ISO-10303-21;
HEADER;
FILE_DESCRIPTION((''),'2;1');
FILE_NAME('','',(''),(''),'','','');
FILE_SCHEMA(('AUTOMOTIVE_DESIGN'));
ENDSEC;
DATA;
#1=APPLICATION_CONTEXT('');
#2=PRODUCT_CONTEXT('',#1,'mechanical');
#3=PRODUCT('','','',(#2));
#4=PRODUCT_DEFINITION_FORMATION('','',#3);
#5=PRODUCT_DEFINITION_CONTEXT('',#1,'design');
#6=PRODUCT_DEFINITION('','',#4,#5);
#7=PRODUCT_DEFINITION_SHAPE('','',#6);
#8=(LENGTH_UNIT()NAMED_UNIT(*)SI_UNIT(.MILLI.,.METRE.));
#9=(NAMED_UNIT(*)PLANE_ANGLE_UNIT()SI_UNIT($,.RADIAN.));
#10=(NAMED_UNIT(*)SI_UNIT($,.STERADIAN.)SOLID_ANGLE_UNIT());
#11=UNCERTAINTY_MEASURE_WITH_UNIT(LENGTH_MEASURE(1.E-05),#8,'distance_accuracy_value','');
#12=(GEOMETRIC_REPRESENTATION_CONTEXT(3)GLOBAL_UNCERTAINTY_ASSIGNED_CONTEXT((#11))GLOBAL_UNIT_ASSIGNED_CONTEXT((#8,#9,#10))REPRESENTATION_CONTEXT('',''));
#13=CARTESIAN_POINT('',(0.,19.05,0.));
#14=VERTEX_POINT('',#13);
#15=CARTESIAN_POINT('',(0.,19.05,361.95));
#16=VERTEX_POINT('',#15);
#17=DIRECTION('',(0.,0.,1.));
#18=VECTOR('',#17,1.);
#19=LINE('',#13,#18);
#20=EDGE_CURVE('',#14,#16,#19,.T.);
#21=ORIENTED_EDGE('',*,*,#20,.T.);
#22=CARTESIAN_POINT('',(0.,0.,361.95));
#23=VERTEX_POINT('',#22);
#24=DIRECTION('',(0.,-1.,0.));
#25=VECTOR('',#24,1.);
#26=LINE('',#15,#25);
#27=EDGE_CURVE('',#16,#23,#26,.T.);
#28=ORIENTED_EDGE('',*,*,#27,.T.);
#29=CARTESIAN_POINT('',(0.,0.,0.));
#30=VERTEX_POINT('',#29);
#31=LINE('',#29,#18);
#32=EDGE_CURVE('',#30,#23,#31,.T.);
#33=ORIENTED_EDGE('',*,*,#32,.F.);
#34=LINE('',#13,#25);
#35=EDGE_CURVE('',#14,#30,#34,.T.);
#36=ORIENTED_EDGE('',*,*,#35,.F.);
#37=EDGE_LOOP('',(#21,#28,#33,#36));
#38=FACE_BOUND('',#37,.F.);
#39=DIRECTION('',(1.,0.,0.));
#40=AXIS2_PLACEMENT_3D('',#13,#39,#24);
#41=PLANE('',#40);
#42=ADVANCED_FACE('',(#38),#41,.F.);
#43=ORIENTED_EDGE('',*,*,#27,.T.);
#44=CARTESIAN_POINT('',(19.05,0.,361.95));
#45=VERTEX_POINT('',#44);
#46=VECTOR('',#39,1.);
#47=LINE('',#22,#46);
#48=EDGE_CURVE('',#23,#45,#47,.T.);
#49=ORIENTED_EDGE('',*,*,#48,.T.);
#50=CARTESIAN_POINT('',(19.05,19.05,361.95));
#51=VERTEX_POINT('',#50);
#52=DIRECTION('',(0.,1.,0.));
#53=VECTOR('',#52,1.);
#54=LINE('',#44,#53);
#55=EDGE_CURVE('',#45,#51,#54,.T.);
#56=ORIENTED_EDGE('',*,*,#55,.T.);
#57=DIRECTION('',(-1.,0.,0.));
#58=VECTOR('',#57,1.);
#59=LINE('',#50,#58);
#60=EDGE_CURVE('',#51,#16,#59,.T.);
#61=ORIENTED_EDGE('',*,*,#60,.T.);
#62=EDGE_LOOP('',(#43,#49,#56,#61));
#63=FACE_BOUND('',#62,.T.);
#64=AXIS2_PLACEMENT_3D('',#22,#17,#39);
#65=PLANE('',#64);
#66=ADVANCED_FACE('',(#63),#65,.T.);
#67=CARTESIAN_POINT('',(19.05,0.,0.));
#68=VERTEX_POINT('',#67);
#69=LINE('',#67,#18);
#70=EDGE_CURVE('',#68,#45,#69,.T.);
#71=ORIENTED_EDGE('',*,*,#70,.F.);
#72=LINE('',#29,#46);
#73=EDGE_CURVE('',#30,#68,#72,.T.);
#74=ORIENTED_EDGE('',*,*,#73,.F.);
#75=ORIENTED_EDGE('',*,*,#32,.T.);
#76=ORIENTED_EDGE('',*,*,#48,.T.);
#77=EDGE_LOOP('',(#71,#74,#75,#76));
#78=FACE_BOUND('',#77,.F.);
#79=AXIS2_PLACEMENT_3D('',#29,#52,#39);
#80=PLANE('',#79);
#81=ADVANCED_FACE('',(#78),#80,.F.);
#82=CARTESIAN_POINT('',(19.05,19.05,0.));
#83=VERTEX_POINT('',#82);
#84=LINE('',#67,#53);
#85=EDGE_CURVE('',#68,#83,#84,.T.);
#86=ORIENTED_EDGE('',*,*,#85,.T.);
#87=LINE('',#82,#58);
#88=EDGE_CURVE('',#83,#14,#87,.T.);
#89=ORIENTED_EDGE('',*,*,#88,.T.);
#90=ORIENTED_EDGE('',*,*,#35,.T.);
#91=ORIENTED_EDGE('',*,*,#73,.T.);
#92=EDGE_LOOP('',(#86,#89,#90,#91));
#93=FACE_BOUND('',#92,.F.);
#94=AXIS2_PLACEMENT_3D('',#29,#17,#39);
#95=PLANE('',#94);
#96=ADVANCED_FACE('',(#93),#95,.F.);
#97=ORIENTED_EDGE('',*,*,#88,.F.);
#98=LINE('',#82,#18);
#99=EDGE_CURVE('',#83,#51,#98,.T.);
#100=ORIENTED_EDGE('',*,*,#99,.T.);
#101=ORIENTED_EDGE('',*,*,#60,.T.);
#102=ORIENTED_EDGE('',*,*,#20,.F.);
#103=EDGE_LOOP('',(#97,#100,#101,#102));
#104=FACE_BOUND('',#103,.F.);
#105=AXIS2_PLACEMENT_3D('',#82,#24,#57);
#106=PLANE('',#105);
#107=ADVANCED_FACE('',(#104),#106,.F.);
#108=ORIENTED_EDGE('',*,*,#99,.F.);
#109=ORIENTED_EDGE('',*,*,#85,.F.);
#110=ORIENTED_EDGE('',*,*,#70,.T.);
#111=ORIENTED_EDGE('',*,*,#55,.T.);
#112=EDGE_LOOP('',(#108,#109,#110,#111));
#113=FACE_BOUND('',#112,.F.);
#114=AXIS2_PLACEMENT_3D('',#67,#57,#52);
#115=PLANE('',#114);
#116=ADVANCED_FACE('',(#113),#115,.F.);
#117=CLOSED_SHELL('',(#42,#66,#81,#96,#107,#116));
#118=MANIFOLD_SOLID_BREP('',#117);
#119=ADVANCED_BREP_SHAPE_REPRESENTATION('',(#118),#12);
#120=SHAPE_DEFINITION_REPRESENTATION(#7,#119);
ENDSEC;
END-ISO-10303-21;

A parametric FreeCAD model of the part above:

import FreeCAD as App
import Part
import Sketcher

V = App.Vector
Q = App.Units.Quantity

doc = App.newDocument("Part")
body = doc.addObject("PartDesign::Body", "Body")

# Sketch on XY plane
sketch1 = doc.addObject("Sketcher::SketchObject", "Sketch")
body.addObject(sketch1)
sketch1.AttachmentSupport = (doc.XY_Plane, [""])
sketch1.MapMode = "FlatFace"
sketch1.addGeometry(Part.LineSegment(V(0, 19, 0), V(0, 0, 0)), False)
sketch1.addGeometry(Part.LineSegment(V(0, 0, 0), V(19, 0, 0)), False)
sketch1.addGeometry(Part.LineSegment(V(19, 0, 0), V(19, 19, 0)), False)
sketch1.addGeometry(Part.LineSegment(V(19, 19, 0), V(0, 19, 0)), False)
sketch1.addConstraint(Sketcher.Constraint("Coincident", 0, 2, 1, 1))
sketch1.addConstraint(Sketcher.Constraint("Coincident", 1, 2, 2, 1))
sketch1.addConstraint(Sketcher.Constraint("Coincident", 2, 2, 3, 1))
sketch1.addConstraint(Sketcher.Constraint("Coincident", 3, 2, 0, 1))
sketch1.addConstraint(Sketcher.Constraint("Vertical", 0))
sketch1.addConstraint(Sketcher.Constraint("Horizontal", 1))
sketch1.addConstraint(Sketcher.Constraint("Vertical", 2))
sketch1.addConstraint(Sketcher.Constraint("Horizontal", 3))
sketch1.addConstraint(Sketcher.Constraint("Coincident", 0, 2, -1, 1))
sketch1.addConstraint(Sketcher.Constraint("Equal", 3, 0))
sketch1.addConstraint(Sketcher.Constraint("DistanceX", 1, 1, 1, 2, Q("0.75 in")))
pad1 = doc.addObject("PartDesign::Pad", "Pad")
body.addObject(pad1)
pad1.Profile = sketch1
pad1.Length = Q("14.25 in")

doc.recompute()
